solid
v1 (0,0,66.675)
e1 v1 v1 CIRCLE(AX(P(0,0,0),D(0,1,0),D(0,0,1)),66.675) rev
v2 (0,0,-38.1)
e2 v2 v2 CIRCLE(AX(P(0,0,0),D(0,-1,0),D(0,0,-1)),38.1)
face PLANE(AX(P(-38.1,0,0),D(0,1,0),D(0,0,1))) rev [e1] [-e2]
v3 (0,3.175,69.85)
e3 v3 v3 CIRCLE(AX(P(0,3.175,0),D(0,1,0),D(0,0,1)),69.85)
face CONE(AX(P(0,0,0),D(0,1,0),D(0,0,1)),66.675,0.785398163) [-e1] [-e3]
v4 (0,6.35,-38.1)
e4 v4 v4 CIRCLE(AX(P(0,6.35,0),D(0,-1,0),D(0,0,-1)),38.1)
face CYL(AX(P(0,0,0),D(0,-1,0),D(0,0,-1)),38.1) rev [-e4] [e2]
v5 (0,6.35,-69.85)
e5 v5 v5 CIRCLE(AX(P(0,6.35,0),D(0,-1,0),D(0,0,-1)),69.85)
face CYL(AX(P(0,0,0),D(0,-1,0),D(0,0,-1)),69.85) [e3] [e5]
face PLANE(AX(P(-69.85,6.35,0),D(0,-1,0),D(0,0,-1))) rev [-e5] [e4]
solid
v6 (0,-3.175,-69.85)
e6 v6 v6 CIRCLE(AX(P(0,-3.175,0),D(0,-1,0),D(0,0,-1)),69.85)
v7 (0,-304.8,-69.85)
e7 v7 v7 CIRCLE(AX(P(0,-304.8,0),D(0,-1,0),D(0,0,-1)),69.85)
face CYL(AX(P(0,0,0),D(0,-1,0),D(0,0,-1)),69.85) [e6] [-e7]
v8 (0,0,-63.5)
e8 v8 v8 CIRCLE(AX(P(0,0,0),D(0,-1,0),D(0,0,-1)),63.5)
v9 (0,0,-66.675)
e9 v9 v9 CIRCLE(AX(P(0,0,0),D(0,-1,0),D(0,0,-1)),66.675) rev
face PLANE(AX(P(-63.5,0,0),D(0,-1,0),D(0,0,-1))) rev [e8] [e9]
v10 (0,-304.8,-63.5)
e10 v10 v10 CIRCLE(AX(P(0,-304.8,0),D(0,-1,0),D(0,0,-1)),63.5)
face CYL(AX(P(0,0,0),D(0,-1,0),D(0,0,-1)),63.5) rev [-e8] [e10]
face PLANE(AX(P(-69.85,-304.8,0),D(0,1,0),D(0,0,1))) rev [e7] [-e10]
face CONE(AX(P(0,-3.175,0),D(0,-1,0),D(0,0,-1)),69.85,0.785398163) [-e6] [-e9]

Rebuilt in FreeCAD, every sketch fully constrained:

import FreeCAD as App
import Part
import Sketcher

V = App.Vector
Q = App.Units.Quantity


def edges_at(feature, points):
    """Names of the edges that pass closest to the given points."""
    edges = feature.Shape.Edges
    near = lambda p: min(range(len(edges)), key=lambda i: edges[i].distToShape(Part.Vertex(*p))[0])
    return sorted({f"Edge{near(p) + 1}" for p in points})


def add_polygon(sketch, points):
    """Adds a closed chain of lines whose ends are joined by coincident constraints."""
    first, n = sketch.GeometryCount, len(points)
    for a, b in zip(points, points[1:] + points[:1]):
        sketch.addGeometry(Part.LineSegment(App.Vector(*a, 0), App.Vector(*b, 0)), False)
    for i in range(n):
        sketch.addConstraint(Sketcher.Constraint("Coincident", first + i, 2, first + (i + 1) % n, 1))

doc = App.newDocument("Part")
body = doc.addObject("PartDesign::Body", "Body")

sketch1 = body.newObject("Sketcher::SketchObject", "Sketch")
sketch1.AttachmentSupport = (doc.getObject("XY_Plane"), [""])
sketch1.MapMode = "FlatFace"
add_polygon(sketch1, [(-70, 0), (-70, -305), (-64, -305), (-64, 0)])
sketch1.addConstraint(Sketcher.Constraint("Vertical", 0))
sketch1.addConstraint(Sketcher.Constraint("Horizontal", 1))
sketch1.addConstraint(Sketcher.Constraint("Vertical", 2))
sketch1.addConstraint(Sketcher.Constraint("Horizontal", 3))
sketch1.addConstraint(Sketcher.Constraint("PointOnObject", 2, 2, -1))
sketch1.addConstraint(Sketcher.Constraint("DistanceY", 0, 2, 0, 1, Q("12 in")))
sketch1.addConstraint(Sketcher.Constraint("DistanceX", 1, 1, 1, 2, Q("0.25 in")))
sketch1.addConstraint(Sketcher.Constraint("DistanceX", 1, 2, -1, 1, Q("2.5 in")))
revolution = body.newObject("PartDesign::Revolution", "Revolution")
revolution.Profile = sketch1
revolution.ReferenceAxis = (sketch1, ["V_Axis"])
revolution.Angle = 360
doc.recompute()

chamfer = body.newObject("PartDesign::Chamfer", "Chamfer")
chamfer.Base = (revolution, edges_at(revolution, [(69.85, 0, 0)]))
chamfer.Size = Q("0.125 in")
body2 = doc.addObject("PartDesign::Body", "Body001")

sketch2 = body2.newObject("Sketcher::SketchObject", "Sketch001")
sketch2.AttachmentSupport = (doc.getObject("XY_Plane001"), [""])
sketch2.MapMode = "FlatFace"
add_polygon(sketch2, [(-70, 6), (-70, 0), (-38, 0), (-38, 6)])
sketch2.addConstraint(Sketcher.Constraint("Vertical", 0))
sketch2.addConstraint(Sketcher.Constraint("Horizontal", 1))
sketch2.addConstraint(Sketcher.Constraint("Vertical", 2))
sketch2.addConstraint(Sketcher.Constraint("Horizontal", 3))
sketch2.addConstraint(Sketcher.Constraint("PointOnObject", 0, 2, -1))
sketch2.addConstraint(Sketcher.Constraint("DistanceX", 1, 1, 1, 2, Q("1.25 in")))
sketch2.addConstraint(Sketcher.Constraint("DistanceY", 0, 2, 0, 1, Q("0.25 in")))
sketch2.addConstraint(Sketcher.Constraint("DistanceX", 1, 2, -1, 1, Q("1.5 in")))
revolution2 = body2.newObject("PartDesign::Revolution", "Revolution001")
revolution2.Profile = sketch2
revolution2.ReferenceAxis = (sketch2, ["V_Axis"])
revolution2.Angle = 360
doc.recompute()

chamfer2 = body2.newObject("PartDesign::Chamfer", "Chamfer001")
chamfer2.Base = (revolution2, edges_at(revolution2, [(69.85, 0, 0)]))
chamfer2.Size = Q("0.125 in")

doc.recompute()
